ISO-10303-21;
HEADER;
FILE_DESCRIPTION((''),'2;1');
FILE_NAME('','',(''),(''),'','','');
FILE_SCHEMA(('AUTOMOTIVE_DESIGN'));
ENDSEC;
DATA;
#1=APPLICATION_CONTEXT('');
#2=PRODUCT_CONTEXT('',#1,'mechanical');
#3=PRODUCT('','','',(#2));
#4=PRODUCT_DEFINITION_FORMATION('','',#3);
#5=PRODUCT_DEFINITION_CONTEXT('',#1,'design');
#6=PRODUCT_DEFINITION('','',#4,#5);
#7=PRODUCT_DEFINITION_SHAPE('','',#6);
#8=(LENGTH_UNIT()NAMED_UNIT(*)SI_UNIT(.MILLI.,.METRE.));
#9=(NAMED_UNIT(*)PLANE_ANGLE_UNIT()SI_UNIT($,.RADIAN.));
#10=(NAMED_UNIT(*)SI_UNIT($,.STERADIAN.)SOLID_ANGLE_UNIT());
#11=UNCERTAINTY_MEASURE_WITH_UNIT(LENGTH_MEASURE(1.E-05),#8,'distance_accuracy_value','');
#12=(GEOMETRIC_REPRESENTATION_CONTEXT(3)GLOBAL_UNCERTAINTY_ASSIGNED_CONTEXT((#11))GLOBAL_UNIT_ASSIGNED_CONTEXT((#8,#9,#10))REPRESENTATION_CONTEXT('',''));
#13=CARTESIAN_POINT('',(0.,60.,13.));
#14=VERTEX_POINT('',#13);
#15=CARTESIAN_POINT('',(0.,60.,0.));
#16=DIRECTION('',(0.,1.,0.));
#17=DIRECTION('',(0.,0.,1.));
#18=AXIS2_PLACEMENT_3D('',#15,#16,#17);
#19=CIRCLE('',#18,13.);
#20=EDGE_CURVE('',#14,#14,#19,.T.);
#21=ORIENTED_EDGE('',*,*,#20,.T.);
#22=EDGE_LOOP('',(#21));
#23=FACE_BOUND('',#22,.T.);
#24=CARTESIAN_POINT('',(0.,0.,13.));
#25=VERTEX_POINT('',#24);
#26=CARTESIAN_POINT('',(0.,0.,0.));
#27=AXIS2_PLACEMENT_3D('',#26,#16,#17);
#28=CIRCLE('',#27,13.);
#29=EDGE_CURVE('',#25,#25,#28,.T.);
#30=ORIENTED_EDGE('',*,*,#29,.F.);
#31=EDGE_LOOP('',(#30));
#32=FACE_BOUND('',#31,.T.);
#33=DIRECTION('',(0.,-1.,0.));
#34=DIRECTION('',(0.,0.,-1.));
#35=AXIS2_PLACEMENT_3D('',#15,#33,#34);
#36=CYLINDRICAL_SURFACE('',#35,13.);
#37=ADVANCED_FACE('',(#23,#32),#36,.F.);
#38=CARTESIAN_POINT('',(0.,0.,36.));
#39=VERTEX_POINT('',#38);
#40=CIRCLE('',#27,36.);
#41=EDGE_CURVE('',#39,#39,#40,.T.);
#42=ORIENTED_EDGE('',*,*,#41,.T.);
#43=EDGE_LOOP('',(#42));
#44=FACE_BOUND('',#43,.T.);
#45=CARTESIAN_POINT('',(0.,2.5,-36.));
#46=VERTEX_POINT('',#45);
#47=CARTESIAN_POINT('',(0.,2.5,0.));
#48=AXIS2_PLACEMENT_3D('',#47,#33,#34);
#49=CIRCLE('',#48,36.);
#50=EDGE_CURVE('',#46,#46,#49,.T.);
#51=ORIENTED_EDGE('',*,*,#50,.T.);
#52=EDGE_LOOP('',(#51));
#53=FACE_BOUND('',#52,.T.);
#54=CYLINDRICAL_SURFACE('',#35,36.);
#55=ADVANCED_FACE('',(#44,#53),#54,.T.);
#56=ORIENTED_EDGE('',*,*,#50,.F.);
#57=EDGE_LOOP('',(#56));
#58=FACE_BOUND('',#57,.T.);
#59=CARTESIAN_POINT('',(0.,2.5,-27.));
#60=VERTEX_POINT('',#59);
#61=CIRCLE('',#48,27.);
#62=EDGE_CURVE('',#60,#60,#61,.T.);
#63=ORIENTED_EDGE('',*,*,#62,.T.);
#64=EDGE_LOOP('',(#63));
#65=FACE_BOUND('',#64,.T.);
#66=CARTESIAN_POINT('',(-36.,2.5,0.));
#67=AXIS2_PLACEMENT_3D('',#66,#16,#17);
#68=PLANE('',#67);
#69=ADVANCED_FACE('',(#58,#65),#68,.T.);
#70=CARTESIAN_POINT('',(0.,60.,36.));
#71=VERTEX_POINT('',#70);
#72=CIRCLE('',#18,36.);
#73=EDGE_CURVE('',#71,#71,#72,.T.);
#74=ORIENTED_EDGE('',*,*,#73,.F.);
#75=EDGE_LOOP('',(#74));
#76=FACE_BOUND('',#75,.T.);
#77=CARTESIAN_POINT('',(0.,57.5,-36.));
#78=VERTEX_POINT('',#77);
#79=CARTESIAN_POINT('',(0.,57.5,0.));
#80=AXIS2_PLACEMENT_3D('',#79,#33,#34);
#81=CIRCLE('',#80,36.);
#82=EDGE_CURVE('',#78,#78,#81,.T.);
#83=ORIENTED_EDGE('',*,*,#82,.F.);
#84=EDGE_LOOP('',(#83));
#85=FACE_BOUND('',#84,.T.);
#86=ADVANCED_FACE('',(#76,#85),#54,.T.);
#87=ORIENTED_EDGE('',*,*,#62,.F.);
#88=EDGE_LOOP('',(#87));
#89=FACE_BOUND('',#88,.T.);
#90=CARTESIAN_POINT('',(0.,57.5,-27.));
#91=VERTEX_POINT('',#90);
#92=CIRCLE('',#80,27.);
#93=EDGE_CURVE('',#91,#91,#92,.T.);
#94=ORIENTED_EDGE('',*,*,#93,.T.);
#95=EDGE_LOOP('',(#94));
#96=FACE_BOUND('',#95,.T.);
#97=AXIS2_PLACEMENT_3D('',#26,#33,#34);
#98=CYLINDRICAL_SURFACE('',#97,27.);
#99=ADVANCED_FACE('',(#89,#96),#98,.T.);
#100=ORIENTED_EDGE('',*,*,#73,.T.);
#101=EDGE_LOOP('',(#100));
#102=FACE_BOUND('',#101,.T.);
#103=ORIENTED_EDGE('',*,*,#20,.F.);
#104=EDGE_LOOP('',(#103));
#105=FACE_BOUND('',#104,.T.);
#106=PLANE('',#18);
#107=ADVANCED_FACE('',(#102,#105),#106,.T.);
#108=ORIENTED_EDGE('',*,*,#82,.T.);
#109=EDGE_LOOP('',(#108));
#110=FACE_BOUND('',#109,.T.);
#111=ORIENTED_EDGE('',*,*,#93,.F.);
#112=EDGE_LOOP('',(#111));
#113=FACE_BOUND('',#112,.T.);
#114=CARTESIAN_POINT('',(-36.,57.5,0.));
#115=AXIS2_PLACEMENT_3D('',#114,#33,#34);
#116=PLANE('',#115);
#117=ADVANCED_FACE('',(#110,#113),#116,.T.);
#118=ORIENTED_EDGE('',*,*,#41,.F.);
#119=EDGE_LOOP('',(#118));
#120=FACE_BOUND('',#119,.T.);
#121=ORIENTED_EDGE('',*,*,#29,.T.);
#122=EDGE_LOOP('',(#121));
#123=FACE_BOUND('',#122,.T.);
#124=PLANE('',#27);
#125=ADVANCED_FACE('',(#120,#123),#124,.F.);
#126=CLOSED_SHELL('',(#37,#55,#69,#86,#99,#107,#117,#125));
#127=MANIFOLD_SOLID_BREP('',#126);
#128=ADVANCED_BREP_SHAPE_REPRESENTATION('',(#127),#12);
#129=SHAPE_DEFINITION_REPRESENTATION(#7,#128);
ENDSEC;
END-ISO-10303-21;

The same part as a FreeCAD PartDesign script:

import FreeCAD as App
import Part
import Sketcher
from FreeCAD import Vector
Q = App.Units.Quantity

doc = App.newDocument("Part")
body = doc.addObject("PartDesign::Body", "Body")

sketch1 = body.newObject("Sketcher::SketchObject", "Sketch")
sketch1.AttachmentSupport = (doc.getObject("XZ_Plane"), [""])
sketch1.MapMode = "FlatFace"
sketch1.addGeometry([
    Part.Circle(Vector(0, 0, 0), Vector(0, 0, 1), 36),
    Part.Circle(Vector(0, 0, 0), Vector(0, 0, 1), 13),
], False)
sketch1.addConstraint([
    Sketcher.Constraint("Coincident", 0, 3, -1, 1),
    Sketcher.Constraint("Coincident", 1, 3, -1, 1),
    Sketcher.Constraint("Diameter", 0, Q("72 mm")),
    Sketcher.Constraint("Diameter", 1, Q("26 mm")),
])
pad1 = body.newObject("PartDesign::Pad", "Pad")
pad1.Profile = sketch1
pad1.Length = 60
pad1.Reversed = True

sketch2 = body.newObject("Sketcher::SketchObject", "Sketch001")
sketch2.AttachmentSupport = (doc.getObject("XY_Plane"), [""])
sketch2.MapMode = "FlatFace"
sketch2.addGeometry([
    Part.LineSegment(Vector(-36, 58, 0), Vector(-36, 2, 0)),
    Part.LineSegment(Vector(-36, 2, 0), Vector(-27, 2, 0)),
    Part.LineSegment(Vector(-27, 2, 0), Vector(-27, 58, 0)),
    Part.LineSegment(Vector(-27, 58, 0), Vector(-36, 58, 0)),
], False)
sketch2.addConstraint([
    Sketcher.Constraint("Coincident", 0, 2, 1, 1),
    Sketcher.Constraint("Coincident", 1, 2, 2, 1),
    Sketcher.Constraint("Coincident", 2, 2, 3, 1),
    Sketcher.Constraint("Coincident", 3, 2, 0, 1),
    Sketcher.Constraint("Vertical", 0),
    Sketcher.Constraint("Horizontal", 1),
    Sketcher.Constraint("Vertical", 2),
    Sketcher.Constraint("Horizontal", 3),
    Sketcher.Constraint("DistanceX", 1, 1, 1, 2, Q("9 mm")),
    Sketcher.Constraint("DistanceY", 0, 2, 0, 1, Q("55 mm")),
    Sketcher.Constraint("DistanceX", 0, 2, -1, 1, Q("36 mm")),
    Sketcher.Constraint("DistanceY", -1, 1, 0, 2, Q("2.5 mm")),
])
groove = body.newObject("PartDesign::Groove", "Groove")
groove.Profile = sketch2
groove.ReferenceAxis = (sketch2, ["V_Axis"])
groove.Angle = 360

doc.recompute()
